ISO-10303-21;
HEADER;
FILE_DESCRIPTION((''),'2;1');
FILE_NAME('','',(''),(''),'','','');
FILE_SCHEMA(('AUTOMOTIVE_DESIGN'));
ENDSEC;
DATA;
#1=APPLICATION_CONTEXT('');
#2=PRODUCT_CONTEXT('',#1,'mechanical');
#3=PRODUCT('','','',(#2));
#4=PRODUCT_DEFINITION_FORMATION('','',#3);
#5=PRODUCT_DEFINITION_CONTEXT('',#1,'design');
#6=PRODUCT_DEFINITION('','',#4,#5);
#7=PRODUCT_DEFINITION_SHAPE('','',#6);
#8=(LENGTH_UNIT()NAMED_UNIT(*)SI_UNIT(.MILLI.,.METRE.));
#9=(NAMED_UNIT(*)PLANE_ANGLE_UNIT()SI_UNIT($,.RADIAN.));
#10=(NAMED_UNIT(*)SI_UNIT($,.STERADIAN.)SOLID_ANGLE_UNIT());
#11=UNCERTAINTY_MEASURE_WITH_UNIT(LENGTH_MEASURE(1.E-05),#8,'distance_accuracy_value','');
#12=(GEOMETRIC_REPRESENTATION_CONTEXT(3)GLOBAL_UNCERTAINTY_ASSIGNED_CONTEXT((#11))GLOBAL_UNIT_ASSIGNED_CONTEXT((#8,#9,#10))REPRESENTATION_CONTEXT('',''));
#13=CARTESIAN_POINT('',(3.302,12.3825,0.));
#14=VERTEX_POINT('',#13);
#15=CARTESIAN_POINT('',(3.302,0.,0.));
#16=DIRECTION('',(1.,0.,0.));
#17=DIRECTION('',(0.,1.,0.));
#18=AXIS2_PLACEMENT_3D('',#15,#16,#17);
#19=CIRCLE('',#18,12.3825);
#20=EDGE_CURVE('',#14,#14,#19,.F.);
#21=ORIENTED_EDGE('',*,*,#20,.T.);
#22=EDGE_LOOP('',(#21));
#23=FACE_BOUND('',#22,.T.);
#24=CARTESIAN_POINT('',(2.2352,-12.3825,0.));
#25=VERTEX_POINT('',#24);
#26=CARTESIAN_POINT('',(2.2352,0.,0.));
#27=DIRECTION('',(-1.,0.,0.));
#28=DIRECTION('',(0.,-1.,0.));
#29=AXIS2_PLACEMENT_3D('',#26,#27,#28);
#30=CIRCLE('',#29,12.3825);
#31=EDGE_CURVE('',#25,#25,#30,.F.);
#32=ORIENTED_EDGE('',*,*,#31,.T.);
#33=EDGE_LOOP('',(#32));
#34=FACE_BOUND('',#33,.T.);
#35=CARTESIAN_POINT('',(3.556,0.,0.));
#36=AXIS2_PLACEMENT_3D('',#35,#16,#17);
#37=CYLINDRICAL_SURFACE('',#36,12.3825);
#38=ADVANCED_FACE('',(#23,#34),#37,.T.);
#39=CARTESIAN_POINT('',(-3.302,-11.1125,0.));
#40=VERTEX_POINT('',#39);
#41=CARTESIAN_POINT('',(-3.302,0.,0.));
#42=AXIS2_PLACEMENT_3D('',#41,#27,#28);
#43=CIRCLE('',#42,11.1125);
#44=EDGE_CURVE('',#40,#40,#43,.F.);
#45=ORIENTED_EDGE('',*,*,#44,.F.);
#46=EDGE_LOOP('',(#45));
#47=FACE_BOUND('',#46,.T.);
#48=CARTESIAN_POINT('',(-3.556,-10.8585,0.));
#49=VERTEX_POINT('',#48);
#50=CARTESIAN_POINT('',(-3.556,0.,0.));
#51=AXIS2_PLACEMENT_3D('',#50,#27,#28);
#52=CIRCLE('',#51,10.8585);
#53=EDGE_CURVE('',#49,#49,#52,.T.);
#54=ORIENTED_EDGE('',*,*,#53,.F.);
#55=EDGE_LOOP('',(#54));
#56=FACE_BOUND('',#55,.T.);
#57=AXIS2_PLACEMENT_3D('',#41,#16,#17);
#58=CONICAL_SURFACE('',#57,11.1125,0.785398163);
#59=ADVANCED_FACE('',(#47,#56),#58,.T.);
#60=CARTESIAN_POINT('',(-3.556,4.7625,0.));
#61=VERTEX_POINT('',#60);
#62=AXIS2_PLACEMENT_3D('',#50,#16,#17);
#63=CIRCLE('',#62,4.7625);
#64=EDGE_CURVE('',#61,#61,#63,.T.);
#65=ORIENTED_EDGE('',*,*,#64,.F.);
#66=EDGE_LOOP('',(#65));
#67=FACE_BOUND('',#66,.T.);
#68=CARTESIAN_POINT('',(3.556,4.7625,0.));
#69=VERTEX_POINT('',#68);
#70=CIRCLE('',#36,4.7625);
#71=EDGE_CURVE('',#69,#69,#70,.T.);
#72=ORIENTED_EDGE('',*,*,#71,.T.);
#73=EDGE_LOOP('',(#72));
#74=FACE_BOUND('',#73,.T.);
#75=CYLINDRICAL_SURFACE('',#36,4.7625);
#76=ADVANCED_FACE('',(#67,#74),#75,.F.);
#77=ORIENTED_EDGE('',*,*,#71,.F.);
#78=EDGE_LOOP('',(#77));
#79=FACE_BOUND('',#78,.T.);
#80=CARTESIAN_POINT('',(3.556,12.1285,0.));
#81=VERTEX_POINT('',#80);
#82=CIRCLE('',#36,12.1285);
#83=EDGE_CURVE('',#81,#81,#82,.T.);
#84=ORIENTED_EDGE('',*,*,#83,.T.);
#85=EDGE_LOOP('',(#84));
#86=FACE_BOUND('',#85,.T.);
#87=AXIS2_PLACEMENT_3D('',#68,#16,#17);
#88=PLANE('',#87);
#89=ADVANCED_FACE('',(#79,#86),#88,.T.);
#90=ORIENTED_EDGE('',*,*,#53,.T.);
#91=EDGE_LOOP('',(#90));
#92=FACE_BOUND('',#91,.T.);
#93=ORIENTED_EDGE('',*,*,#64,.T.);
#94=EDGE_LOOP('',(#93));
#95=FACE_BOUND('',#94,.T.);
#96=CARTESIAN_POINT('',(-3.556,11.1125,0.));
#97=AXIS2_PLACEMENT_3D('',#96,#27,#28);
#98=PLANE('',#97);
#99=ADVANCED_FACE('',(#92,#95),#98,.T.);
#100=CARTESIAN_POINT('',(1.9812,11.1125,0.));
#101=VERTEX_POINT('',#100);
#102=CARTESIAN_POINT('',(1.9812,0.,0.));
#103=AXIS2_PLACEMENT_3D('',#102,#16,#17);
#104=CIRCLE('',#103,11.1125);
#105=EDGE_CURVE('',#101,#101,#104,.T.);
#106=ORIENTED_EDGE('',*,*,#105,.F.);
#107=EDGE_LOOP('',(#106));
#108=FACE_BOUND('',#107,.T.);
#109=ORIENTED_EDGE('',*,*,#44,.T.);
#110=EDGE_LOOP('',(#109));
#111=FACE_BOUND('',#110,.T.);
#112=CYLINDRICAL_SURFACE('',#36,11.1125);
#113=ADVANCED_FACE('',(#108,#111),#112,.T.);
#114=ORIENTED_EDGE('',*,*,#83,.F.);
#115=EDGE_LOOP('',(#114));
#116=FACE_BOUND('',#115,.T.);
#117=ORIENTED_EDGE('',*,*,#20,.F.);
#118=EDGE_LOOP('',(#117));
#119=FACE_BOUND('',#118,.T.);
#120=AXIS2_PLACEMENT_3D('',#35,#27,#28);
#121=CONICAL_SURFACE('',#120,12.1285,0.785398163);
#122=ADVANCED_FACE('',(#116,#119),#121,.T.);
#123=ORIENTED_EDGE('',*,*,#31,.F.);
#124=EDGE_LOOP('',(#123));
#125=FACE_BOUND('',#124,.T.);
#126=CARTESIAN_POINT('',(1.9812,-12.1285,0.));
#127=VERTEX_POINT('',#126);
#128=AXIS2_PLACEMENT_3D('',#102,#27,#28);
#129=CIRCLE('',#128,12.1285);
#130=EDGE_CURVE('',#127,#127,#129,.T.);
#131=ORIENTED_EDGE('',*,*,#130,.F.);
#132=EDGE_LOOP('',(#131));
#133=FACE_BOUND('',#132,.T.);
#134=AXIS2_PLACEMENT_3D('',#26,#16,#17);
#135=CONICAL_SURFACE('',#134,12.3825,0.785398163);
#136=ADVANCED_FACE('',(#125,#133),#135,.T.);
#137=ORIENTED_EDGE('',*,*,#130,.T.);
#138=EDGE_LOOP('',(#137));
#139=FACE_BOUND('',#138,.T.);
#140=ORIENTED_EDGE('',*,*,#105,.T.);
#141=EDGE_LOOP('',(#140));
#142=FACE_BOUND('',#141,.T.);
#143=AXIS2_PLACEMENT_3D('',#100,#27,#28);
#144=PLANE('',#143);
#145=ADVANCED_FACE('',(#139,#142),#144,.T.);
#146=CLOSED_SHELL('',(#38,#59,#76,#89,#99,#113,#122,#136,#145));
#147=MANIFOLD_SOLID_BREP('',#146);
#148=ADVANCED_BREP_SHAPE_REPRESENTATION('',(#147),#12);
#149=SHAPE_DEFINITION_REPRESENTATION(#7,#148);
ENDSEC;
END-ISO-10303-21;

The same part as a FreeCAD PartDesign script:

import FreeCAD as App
import Part
import Sketcher
Q = App.Units.Quantity


def edges_at(feature, points):
    """Names of the edges that pass closest to the given points."""
    edges = feature.Shape.Edges
    near = lambda p: min(range(len(edges)), key=lambda i: edges[i].distToShape(Part.Vertex(*p))[0])
    return sorted({f"Edge{near(p) + 1}" for p in points})


def add_polygon(sketch, points):
    """Adds a closed chain of lines whose ends are joined by coincident constraints."""
    first, n = sketch.GeometryCount, len(points)
    for a, b in zip(points, points[1:] + points[:1]):
        sketch.addGeometry(Part.LineSegment(App.Vector(*a, 0), App.Vector(*b, 0)), False)
    for i in range(n):
        sketch.addConstraint(Sketcher.Constraint("Coincident", first + i, 2, first + (i + 1) % n, 1))

doc = App.newDocument("Part")
body = doc.addObject("PartDesign::Body", "Body")

sketch1 = body.newObject("Sketcher::SketchObject", "Sketch")
sketch1.AttachmentSupport = (doc.getObject("XY_Plane"), [""])
sketch1.MapMode = "FlatFace"
add_polygon(sketch1, [(1.9812, 11.1125), (-3.556, 11.1125), (-3.556, 4.7625), (3.556, 4.7625), (3.556, 12.3825), (1.9812, 12.3825)])
sketch1.addConstraint([
    Sketcher.Constraint("Horizontal", 0),
    Sketcher.Constraint("Vertical", 1),
    Sketcher.Constraint("Horizontal", 2),
    Sketcher.Constraint("Vertical", 3),
    Sketcher.Constraint("Horizontal", 4),
    Sketcher.Constraint("Vertical", 5),
    Sketcher.Constraint("DistanceY", 3, 1, 3, 2, Q("0.3 in")),
    Sketcher.Constraint("DistanceX", 2, 1, 2, 2, Q("0.28 in")),
    Sketcher.Constraint("DistanceY", 1, 2, 1, 1, Q("0.25 in")),
    Sketcher.Constraint("DistanceX", 0, 2, 0, 1, Q("0.218 in")),
    Sketcher.Constraint("DistanceX", 0, 2, -1, 1, Q("0.14 in")),
    Sketcher.Constraint("DistanceY", -1, 1, 0, 2, Q("0.4375 in")),
])
revolution = body.newObject("PartDesign::Revolution", "Revolution")
revolution.Profile = sketch1
revolution.ReferenceAxis = (sketch1, ["H_Axis"])
revolution.Angle = 360
doc.recompute()

chamfer = body.newObject("PartDesign::Chamfer", "Chamfer")
chamfer.Base = (revolution, edges_at(revolution, [(-3.556, -11.113, 0), (1.981, -12.383, 0), (3.556, -12.383, 0)]))
chamfer.Size = Q("0.01 in")

doc.recompute()
